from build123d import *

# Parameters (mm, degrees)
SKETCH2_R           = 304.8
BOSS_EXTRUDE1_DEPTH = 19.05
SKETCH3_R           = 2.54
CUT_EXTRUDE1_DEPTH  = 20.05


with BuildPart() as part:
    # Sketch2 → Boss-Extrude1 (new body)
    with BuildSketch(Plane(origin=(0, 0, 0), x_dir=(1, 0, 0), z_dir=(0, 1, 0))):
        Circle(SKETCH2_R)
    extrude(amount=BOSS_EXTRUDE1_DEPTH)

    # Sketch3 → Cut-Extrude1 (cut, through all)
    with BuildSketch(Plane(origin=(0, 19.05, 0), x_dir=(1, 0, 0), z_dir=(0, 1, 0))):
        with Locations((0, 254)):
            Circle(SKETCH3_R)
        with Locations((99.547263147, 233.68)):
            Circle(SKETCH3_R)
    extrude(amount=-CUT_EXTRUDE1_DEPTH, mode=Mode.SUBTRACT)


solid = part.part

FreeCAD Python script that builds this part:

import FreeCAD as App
import Part
import Sketcher

V = App.Vector
Q = App.Units.Quantity

doc = App.newDocument("Part")
body = doc.addObject("PartDesign::Body", "Body")

sketch1 = doc.addObject("Sketcher::SketchObject", "Sketch")
body.addObject(sketch1)
sketch1.AttachmentSupport = (doc.XZ_Plane, [""])
sketch1.MapMode = "FlatFace"
sketch1.addGeometry(Part.Circle(V(0, 0, 0), V(0, 0, 1), 305), False)
sketch1.addConstraint(Sketcher.Constraint("Coincident", 0, 3, -1, 1))
sketch1.addConstraint(Sketcher.Constraint("Diameter", 0, Q("24 in")))
pad1 = doc.addObject("PartDesign::Pad", "Pad")
body.addObject(pad1)
pad1.Profile = sketch1
pad1.Length = Q("0.75 in")
pad1.Reversed = True

sketch2 = doc.addObject("Sketcher::SketchObject", "Sketch001")
body.addObject(sketch2)
sketch2.AttachmentSupport = (doc.XZ_Plane, [""])
sketch2.MapMode = "FlatFace"
sketch2.AttachmentOffset = App.Placement(V(0, 0, -0.75 * 25.4), App.Rotation())
sketch2.addGeometry(Part.Circle(V(0, -254, 0), V(0, 0, 1), 2.5), False)
sketch2.addGeometry(Part.Circle(V(99.5, -233.7, 0), V(0, 0, 1), 2.5), False)
sketch2.addConstraint(Sketcher.Constraint("Equal", 0, 1))
sketch2.addConstraint(Sketcher.Constraint("PointOnObject", 0, 3, -2))
sketch2.addConstraint(Sketcher.Constraint("Diameter", 0, Q("0.2 in")))
sketch2.addConstraint(Sketcher.Constraint("DistanceY", 0, 3, -1, 1, Q("10 in")))
sketch2.addConstraint(Sketcher.Constraint("DistanceY", 1, 3, -1, 1, Q("9.2 in")))
sketch2.addConstraint(Sketcher.Constraint("DistanceX", -1, 1, 1, 3, 99.547263))
pocket1 = doc.addObject("PartDesign::Pocket", "Pocket")
body.addObject(pocket1)
pocket1.Profile = sketch2
pocket1.Type = "ThroughAll"
pocket1.Reversed = True

doc.recompute()
